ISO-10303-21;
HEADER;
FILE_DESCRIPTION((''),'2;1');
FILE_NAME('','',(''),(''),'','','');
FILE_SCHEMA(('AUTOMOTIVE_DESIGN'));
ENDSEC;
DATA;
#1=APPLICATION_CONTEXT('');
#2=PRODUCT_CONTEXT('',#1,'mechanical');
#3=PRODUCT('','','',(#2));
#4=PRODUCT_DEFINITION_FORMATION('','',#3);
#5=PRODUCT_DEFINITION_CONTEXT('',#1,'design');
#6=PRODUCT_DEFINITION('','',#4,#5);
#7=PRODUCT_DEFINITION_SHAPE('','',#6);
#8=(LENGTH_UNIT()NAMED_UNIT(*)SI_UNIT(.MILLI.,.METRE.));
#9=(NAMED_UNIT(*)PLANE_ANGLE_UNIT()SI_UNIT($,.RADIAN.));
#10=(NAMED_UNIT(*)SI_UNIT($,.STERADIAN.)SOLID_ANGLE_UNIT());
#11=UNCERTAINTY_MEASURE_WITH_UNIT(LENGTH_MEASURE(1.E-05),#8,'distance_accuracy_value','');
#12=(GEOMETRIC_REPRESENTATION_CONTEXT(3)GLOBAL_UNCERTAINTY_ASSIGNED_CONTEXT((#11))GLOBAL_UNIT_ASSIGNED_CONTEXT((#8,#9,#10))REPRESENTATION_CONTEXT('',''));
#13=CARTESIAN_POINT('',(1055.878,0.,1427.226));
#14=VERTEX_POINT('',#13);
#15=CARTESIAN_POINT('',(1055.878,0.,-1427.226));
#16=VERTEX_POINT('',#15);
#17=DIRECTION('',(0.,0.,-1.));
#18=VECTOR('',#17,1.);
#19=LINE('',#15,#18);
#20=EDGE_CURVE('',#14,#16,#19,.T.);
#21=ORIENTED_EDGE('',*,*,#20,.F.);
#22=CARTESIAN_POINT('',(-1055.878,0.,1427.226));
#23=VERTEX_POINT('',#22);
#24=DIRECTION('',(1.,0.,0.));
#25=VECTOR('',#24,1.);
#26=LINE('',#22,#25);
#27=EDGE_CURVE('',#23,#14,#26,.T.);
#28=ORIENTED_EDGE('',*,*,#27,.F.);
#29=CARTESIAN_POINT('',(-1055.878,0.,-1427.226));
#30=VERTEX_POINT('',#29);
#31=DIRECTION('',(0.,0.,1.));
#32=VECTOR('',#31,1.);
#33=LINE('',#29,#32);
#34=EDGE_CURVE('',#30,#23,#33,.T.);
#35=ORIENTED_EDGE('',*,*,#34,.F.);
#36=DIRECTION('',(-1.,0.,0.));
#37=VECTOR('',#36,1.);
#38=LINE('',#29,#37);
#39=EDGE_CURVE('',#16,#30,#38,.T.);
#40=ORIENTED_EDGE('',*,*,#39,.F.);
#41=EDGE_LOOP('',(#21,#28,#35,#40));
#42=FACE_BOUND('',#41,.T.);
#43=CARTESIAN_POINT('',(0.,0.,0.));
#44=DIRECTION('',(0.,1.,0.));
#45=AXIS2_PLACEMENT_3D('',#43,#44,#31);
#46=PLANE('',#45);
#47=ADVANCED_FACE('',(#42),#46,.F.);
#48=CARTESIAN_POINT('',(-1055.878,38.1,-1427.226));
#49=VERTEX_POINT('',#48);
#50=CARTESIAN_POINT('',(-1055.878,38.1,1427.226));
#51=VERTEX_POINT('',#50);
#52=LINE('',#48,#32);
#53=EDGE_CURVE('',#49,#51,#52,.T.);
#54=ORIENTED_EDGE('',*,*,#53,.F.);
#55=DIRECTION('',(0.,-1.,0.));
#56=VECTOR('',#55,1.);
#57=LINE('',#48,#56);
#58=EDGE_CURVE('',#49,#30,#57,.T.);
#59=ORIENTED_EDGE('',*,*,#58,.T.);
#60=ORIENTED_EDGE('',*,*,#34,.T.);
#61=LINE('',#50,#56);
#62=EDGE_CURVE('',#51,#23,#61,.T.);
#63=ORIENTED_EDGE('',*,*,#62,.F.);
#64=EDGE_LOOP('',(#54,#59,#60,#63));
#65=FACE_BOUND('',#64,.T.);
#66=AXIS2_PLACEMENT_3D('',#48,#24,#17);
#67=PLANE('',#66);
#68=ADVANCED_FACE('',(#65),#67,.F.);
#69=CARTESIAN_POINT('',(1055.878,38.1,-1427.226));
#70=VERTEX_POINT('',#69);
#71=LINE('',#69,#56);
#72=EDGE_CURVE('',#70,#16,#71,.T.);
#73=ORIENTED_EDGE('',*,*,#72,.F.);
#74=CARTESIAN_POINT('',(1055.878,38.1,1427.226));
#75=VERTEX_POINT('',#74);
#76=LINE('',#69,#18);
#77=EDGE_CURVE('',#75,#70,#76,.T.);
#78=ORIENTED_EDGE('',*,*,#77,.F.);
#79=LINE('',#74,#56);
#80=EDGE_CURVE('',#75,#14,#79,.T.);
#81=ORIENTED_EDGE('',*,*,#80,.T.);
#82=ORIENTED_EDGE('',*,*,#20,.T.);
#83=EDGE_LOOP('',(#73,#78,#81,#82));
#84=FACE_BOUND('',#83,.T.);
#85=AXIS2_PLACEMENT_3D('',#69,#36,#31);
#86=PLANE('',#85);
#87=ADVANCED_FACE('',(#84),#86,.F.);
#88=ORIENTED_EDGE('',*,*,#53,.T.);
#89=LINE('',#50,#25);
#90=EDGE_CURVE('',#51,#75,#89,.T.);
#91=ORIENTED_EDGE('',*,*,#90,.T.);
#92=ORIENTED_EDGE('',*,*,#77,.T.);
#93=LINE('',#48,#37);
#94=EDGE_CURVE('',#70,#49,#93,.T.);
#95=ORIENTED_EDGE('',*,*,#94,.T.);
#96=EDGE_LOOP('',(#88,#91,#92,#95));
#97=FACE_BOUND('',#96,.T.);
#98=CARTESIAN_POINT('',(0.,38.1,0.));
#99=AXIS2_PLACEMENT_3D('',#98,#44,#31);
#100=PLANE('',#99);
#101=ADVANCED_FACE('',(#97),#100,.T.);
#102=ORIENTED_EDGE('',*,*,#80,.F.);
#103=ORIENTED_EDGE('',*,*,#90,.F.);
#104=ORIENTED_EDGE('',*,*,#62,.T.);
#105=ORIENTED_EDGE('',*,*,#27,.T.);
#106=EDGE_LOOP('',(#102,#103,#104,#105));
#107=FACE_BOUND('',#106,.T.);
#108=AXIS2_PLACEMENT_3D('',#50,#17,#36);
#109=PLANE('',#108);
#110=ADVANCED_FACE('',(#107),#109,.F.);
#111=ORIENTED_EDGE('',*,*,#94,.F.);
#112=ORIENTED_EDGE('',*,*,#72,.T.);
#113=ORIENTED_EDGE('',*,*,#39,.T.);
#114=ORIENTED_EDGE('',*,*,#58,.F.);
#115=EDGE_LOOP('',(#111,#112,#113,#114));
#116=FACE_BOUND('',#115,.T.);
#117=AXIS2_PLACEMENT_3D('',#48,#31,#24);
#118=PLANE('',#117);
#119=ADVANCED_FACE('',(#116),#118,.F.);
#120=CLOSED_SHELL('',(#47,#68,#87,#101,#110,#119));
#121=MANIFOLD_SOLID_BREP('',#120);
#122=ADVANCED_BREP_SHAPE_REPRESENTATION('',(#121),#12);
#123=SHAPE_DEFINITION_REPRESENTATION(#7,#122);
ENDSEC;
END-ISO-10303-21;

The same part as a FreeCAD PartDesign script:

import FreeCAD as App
import Part
import Sketcher

V = App.Vector
Q = App.Units.Quantity

doc = App.newDocument("Part")
body = doc.addObject("PartDesign::Body", "Body")

sketch1 = body.newObject("Sketcher::SketchObject", "Sketch")
sketch1.AttachmentSupport = (doc.getObject("XZ_Plane"), [""])
sketch1.MapMode = "FlatFace"
sketch1.addGeometry(Part.LineSegment(V(-1055.878, -1427.226, 0), V(-1055.878, 1427.226, 0)), False)
sketch1.addGeometry(Part.LineSegment(V(-1055.878, 1427.226, 0), V(1055.878, 1427.226, 0)), False)
sketch1.addGeometry(Part.LineSegment(V(1055.878, 1427.226, 0), V(1055.878, -1427.226, 0)), False)
sketch1.addGeometry(Part.LineSegment(V(1055.878, -1427.226, 0), V(-1055.878, -1427.226, 0)), False)
sketch1.addConstraint(Sketcher.Constraint("Coincident", 0, 2, 1, 1))
sketch1.addConstraint(Sketcher.Constraint("Coincident", 1, 2, 2, 1))
sketch1.addConstraint(Sketcher.Constraint("Coincident", 2, 2, 3, 1))
sketch1.addConstraint(Sketcher.Constraint("Coincident", 3, 2, 0, 1))
sketch1.addConstraint(Sketcher.Constraint("Vertical", 0))
sketch1.addConstraint(Sketcher.Constraint("Horizontal", 1))
sketch1.addConstraint(Sketcher.Constraint("Vertical", 2))
sketch1.addConstraint(Sketcher.Constraint("Horizontal", 3))
sketch1.addConstraint(Sketcher.Constraint("Symmetric", 0, 2, 2, 2, -1, 1))
sketch1.addConstraint(Sketcher.Constraint("DistanceX", 1, 1, 1, 2, Q("83.14 in")))
sketch1.addConstraint(Sketcher.Constraint("DistanceY", 0, 1, 0, 2, Q("112.38 in")))
pad1 = body.newObject("PartDesign::Pad", "Pad")
pad1.Profile = sketch1
pad1.Length = Q("1.5 in")
pad1.Reversed = True

doc.recompute()
